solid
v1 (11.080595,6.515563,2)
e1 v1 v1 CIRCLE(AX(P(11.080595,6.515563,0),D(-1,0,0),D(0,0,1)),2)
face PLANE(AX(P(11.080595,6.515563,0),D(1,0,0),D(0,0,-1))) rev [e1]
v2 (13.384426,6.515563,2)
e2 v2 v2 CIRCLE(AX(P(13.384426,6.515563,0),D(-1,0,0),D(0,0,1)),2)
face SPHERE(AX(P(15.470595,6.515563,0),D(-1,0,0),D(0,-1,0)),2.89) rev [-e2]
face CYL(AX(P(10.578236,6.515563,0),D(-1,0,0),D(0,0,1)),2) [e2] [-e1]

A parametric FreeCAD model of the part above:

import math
import FreeCAD as App
import Part
import Sketcher

doc = App.newDocument("Part")
params = doc.addObject("Spreadsheet::Sheet", "Params")
for row, (alias, value) in enumerate([
    ("sketch1_height", "2 mm"),
    ("sketch1_radius", "2.89 mm"),
    ("sketch1_width", "1.5 mm"),
    ("revolution_angle", "360 deg"),
], start=1):
    params.set(f"A{row}", alias)
    params.set(f"B{row}", "=" + value)
    params.setAlias(f"B{row}", alias)

body = doc.addObject("PartDesign::Body", "Body")

# Sketch on XY plane
sketch1 = body.newObject("Sketcher::SketchObject", "Sketch")
sketch1.AttachmentSupport = (doc.getObject("XY_Plane"), [""])
sketch1.MapMode = "FlatFace"
sketch1.addGeometry([
    Part.LineSegment(App.Vector(11.080595, 8.515563, 0), App.Vector(11.080595, 6.515563, 0)),
    Part.LineSegment(App.Vector(11.080595, 6.515563, 0), App.Vector(12.580595, 6.515563, 0)),
    Part.ArcOfCircle(Part.Circle(App.Vector(15.470595, 6.515563, 0), App.Vector(0, 0, 1), 2.89), math.radians(136.208069), math.radians(180)),
    Part.LineSegment(App.Vector(13.384426, 8.515563, 0), App.Vector(11.080595, 8.515563, 0)),
], False)
sketch1.addGeometry(Part.LineSegment(App.Vector(11.080595, 6.515563, 0), App.Vector(15.470595, 6.515563, 0)), True)  # axis
sketch1.addConstraint([
    Sketcher.Constraint("Coincident", 0, 2, 1, 1),
    Sketcher.Constraint("Coincident", 1, 2, 2, 2),
    Sketcher.Constraint("Coincident", 2, 1, 3, 1),
    Sketcher.Constraint("Coincident", 3, 2, 0, 1),
    Sketcher.Constraint("Vertical", 0),
    Sketcher.Constraint("Horizontal", 1),
    Sketcher.Constraint("Horizontal", 3),
    Sketcher.Constraint("Horizontal", 4),
    Sketcher.Constraint("Coincident", 4, 1, 0, 2),
    Sketcher.Constraint("Coincident", 4, 2, 2, 3),
    Sketcher.Constraint("DistanceY", 0, 2, 0, 1, 2.0),
    Sketcher.Constraint("Radius", 2, 2.89),
    Sketcher.Constraint("DistanceX", 1, 1, 1, 2, 1.5),
    Sketcher.Constraint("DistanceX", -1, 1, 2, 3, 15.470595),
    Sketcher.Constraint("DistanceY", -1, 1, 2, 3, 6.515563),
])
sketch1.setExpression("Constraints[10]", "Params.sketch1_height")
sketch1.setExpression("Constraints[11]", "Params.sketch1_radius")
sketch1.setExpression("Constraints[12]", "Params.sketch1_width")
revolution = body.newObject("PartDesign::Revolution", "Revolution")
revolution.Profile = sketch1
revolution.ReferenceAxis = (sketch1, ["Axis0"])
revolution.setExpression("Angle", "Params.revolution_angle")

doc.recompute()
